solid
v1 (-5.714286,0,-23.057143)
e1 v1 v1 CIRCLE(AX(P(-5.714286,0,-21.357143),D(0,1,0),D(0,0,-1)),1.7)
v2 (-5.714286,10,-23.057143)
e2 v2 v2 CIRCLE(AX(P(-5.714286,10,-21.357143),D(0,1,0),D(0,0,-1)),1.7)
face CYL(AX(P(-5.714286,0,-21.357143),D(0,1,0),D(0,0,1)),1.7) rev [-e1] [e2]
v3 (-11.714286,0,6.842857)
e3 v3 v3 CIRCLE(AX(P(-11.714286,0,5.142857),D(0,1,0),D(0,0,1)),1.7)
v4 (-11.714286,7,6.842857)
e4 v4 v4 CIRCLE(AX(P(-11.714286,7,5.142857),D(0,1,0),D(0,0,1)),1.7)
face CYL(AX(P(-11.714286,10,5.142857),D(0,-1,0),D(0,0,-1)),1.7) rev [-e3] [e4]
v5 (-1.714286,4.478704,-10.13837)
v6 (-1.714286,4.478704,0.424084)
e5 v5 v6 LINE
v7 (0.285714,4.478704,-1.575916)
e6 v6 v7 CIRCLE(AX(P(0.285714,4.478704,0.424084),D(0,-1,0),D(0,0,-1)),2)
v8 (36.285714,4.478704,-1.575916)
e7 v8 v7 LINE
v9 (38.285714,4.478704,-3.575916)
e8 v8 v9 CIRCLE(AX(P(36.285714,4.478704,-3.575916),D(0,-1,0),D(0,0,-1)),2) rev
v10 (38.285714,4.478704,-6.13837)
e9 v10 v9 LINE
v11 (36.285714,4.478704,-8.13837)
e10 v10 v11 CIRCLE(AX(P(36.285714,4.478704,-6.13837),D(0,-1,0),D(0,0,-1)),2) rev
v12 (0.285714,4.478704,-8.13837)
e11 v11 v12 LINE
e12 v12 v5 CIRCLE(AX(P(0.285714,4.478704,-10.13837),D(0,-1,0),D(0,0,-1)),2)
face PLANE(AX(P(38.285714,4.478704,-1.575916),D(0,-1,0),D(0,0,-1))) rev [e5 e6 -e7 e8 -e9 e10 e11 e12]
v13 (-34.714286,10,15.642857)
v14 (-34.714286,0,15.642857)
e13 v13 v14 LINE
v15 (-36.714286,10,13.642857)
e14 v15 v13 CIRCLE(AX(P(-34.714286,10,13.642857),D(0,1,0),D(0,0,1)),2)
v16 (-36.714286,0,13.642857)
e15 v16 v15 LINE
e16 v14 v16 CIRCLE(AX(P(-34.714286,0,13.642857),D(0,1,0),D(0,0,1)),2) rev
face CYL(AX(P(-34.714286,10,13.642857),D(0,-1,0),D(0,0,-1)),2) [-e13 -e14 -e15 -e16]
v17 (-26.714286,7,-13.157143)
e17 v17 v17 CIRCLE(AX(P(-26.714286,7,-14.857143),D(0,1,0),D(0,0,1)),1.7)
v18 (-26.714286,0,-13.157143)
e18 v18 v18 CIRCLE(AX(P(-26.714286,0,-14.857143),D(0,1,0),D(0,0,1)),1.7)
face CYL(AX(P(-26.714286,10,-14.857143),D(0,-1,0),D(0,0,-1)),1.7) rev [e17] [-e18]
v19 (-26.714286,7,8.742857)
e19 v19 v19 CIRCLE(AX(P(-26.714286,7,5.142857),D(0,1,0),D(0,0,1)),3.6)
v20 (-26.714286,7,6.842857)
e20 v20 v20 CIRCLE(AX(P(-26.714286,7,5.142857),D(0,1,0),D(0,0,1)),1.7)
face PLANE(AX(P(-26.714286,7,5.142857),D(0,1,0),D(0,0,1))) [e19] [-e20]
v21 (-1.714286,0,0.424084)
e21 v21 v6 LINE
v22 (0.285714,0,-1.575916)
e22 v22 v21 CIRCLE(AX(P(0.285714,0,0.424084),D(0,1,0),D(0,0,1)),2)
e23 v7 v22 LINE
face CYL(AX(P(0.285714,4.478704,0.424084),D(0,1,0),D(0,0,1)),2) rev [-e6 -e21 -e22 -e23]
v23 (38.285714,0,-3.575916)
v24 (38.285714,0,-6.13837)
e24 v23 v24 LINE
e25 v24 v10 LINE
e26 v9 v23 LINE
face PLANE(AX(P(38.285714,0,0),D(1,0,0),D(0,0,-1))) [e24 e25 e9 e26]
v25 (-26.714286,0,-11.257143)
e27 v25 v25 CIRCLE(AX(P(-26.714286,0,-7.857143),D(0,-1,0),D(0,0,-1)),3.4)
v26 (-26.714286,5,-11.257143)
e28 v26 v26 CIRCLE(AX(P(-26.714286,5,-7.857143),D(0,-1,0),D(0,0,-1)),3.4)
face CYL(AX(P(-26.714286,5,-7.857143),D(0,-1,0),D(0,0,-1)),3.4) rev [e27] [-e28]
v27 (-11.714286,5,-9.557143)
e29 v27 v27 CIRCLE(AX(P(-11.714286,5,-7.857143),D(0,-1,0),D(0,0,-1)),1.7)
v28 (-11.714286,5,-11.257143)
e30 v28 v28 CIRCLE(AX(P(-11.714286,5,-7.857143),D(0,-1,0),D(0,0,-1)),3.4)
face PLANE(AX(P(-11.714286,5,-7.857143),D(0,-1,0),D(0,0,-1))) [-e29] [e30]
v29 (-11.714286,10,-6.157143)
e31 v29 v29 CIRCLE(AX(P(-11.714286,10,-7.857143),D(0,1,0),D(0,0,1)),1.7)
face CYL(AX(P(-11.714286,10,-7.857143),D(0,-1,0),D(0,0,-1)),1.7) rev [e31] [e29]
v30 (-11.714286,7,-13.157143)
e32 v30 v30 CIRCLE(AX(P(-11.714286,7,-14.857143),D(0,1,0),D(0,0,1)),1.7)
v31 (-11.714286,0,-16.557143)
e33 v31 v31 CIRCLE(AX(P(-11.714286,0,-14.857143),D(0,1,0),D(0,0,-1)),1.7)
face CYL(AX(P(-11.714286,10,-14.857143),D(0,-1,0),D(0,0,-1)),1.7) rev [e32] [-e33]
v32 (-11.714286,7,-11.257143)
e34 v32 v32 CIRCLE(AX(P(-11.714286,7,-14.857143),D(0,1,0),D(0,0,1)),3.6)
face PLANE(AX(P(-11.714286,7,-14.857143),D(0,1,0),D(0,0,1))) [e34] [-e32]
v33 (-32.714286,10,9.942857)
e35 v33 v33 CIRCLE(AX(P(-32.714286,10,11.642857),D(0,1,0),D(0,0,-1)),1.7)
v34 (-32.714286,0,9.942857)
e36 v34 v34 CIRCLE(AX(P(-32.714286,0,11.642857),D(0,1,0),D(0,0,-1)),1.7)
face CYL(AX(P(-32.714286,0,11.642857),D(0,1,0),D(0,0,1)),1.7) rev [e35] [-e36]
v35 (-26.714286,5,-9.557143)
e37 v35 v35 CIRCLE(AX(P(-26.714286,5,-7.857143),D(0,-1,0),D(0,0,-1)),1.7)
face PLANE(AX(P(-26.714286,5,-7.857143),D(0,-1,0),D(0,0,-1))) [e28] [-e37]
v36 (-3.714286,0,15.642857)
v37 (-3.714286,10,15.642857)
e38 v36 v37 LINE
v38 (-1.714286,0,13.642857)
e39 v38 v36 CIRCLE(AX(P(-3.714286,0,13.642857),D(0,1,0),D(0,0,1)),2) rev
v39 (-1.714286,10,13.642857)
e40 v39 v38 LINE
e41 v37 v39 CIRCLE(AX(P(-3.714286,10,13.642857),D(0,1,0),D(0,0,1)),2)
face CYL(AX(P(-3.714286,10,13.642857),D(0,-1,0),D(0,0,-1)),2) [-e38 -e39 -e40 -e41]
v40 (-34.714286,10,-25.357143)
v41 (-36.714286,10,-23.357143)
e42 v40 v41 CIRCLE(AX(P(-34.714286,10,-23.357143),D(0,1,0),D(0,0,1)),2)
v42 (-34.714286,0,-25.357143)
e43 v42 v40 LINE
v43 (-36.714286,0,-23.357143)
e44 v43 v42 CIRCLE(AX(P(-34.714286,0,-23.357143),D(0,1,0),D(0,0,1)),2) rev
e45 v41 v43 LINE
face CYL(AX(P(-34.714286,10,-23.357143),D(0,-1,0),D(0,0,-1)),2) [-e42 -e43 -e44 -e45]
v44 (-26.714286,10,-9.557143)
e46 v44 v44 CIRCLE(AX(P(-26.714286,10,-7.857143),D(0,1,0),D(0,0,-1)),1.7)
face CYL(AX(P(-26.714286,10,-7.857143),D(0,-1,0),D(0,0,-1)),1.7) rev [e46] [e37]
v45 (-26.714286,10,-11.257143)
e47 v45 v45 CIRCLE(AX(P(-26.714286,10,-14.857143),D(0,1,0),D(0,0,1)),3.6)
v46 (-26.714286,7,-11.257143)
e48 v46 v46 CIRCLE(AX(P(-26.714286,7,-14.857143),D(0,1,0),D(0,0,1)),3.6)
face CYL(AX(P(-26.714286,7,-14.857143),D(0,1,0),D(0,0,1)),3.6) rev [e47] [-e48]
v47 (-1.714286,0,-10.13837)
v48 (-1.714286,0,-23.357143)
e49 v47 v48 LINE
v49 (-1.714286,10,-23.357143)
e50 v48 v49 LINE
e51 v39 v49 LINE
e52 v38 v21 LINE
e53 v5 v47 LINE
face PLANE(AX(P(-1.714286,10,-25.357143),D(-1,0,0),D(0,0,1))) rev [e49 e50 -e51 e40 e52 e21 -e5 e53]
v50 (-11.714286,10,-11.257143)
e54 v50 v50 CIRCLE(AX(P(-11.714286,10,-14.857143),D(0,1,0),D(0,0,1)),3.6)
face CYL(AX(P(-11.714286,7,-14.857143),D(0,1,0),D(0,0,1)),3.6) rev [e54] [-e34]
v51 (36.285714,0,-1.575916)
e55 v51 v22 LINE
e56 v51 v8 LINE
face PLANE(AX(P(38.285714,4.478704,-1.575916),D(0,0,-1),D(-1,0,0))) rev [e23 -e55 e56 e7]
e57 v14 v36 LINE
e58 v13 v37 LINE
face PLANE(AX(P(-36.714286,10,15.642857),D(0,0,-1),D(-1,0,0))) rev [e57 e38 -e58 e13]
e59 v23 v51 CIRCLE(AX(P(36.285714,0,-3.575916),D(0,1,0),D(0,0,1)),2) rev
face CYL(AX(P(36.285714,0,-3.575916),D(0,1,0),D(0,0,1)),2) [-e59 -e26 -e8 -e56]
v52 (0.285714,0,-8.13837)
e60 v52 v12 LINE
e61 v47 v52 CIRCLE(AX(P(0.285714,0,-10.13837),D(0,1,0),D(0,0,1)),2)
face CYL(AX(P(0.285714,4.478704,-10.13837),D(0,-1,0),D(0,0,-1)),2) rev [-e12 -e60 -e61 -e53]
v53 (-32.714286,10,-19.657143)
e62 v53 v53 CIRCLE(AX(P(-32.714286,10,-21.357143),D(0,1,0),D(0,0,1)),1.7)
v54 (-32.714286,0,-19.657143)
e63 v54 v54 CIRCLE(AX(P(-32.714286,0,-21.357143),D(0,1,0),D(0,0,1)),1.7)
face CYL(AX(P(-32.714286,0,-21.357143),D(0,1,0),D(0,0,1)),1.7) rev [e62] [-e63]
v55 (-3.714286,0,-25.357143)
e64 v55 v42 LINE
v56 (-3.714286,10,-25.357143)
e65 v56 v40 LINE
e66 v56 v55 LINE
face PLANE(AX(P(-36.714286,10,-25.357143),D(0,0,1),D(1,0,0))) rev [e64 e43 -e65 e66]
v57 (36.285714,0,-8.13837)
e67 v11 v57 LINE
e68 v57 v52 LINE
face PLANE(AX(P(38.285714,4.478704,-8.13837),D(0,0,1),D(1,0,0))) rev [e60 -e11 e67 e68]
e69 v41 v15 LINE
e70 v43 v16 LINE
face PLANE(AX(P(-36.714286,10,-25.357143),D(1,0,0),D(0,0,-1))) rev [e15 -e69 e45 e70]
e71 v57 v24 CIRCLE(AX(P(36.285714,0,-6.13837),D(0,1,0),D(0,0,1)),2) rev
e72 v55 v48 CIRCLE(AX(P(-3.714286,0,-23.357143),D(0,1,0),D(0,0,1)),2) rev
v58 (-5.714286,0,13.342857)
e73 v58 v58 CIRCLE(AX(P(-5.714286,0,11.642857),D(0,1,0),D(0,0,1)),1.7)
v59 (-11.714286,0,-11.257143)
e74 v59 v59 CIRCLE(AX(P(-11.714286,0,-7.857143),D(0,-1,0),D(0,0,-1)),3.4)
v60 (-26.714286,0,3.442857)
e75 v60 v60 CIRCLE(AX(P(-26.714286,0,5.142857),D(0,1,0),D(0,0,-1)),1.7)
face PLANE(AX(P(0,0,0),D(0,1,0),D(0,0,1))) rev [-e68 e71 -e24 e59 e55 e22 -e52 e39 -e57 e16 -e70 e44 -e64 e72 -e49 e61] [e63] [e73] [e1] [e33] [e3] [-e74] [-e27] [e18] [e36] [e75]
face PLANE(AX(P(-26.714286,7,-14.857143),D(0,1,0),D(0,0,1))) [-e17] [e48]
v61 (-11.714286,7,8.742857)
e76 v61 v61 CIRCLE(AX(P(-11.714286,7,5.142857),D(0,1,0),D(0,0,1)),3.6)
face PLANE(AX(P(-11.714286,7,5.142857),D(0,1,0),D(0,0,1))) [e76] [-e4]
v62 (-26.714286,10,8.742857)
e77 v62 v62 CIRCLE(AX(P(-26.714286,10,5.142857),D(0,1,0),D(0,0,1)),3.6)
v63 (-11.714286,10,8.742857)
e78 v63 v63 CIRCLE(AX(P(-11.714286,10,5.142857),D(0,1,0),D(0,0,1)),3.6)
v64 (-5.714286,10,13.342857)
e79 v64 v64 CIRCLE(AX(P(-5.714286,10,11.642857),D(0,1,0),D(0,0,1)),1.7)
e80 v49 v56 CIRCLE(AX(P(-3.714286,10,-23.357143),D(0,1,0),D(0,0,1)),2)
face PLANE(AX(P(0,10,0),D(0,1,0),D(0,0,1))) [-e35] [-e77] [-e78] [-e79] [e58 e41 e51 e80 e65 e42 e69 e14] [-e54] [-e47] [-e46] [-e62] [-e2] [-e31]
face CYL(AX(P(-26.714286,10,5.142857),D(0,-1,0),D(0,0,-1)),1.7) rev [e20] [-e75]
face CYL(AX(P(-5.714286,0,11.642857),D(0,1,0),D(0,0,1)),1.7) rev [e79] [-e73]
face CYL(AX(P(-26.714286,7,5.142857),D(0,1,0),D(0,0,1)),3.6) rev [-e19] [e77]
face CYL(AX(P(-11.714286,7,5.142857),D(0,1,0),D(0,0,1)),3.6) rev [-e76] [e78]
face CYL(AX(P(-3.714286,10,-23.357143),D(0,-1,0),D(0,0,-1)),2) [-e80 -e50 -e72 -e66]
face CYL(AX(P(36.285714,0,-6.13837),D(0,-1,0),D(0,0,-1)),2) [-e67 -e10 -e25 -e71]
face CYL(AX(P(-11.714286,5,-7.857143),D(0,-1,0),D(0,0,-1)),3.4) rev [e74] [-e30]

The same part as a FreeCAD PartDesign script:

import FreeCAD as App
import Part
import Sketcher

V = App.Vector


def edges_at(feature, points):
    """Names of the edges that pass closest to the given points."""
    edges = feature.Shape.Edges
    near = lambda p: min(range(len(edges)), key=lambda i: edges[i].distToShape(Part.Vertex(*p))[0])
    return sorted({f"Edge{near(p) + 1}" for p in points})


def add_polygon(sketch, points):
    """Adds a closed chain of lines whose ends are joined by coincident constraints."""
    first, n = sketch.GeometryCount, len(points)
    for a, b in zip(points, points[1:] + points[:1]):
        sketch.addGeometry(Part.LineSegment(App.Vector(*a, 0), App.Vector(*b, 0)), False)
    for i in range(n):
        sketch.addConstraint(Sketcher.Constraint("Coincident", first + i, 2, first + (i + 1) % n, 1))

doc = App.newDocument("Part")
body = doc.addObject("PartDesign::Body", "Body")

sketch1 = body.newObject("Sketcher::SketchObject", "Sketch")
sketch1.AttachmentSupport = (doc.getObject("XZ_Plane"), [""])
sketch1.MapMode = "FlatFace"
add_polygon(sketch1, [(-36.714286, -25.357143), (-36.714286, 15.642857), (-1.714286, 15.642857), (-1.714286, -25.357143)])
sketch1.addGeometry(Part.Circle(V(-26.714286, 5.142857, 0), V(0, 0, 1), 1.7), False)
sketch1.addGeometry(Part.Circle(V(-11.714286, 5.142857, 0), V(0, 0, 1), 1.7), False)
sketch1.addGeometry(Part.Circle(V(-26.714286, -7.857143, 0), V(0, 0, 1), 1.7), False)
sketch1.addGeometry(Part.Circle(V(-26.714286, -14.857143, 0), V(0, 0, 1), 1.7), False)
sketch1.addGeometry(Part.Circle(V(-11.714286, -7.857143, 0), V(0, 0, 1), 1.7), False)
sketch1.addGeometry(Part.Circle(V(-11.714286, -14.857143, 0), V(0, 0, 1), 1.7), False)
sketch1.addConstraint(Sketcher.Constraint("Vertical", 0))
sketch1.addConstraint(Sketcher.Constraint("Horizontal", 1))
sketch1.addConstraint(Sketcher.Constraint("Vertical", 2))
sketch1.addConstraint(Sketcher.Constraint("Horizontal", 3))
sketch1.addConstraint(Sketcher.Constraint("Equal", 4, 5))
sketch1.addConstraint(Sketcher.Constraint("Equal", 5, 6))
sketch1.addConstraint(Sketcher.Constraint("Equal", 6, 7))
sketch1.addConstraint(Sketcher.Constraint("Equal", 7, 8))
sketch1.addConstraint(Sketcher.Constraint("Equal", 8, 9))
sketch1.addConstraint(Sketcher.Constraint("Horizontal", 4, 3, 5, 3))
sketch1.addConstraint(Sketcher.Constraint("Horizontal", 6, 3, 8, 3))
sketch1.addConstraint(Sketcher.Constraint("Horizontal", 7, 3, 9, 3))
sketch1.addConstraint(Sketcher.Constraint("Vertical", 4, 3, 6, 3))
sketch1.addConstraint(Sketcher.Constraint("Vertical", 6, 3, 7, 3))
sketch1.addConstraint(Sketcher.Constraint("Vertical", 5, 3, 8, 3))
sketch1.addConstraint(Sketcher.Constraint("Vertical", 8, 3, 9, 3))
sketch1.addConstraint(Sketcher.Constraint("Diameter", 4, 3.4))
sketch1.addConstraint(Sketcher.Constraint("DistanceX", 1, 1, 1, 2, 35.0))
sketch1.addConstraint(Sketcher.Constraint("DistanceY", 0, 1, 0, 2, 41.0))
sketch1.addConstraint(Sketcher.Constraint("DistanceX", 4, 3, 5, 3, 15.0))
sketch1.addConstraint(Sketcher.Constraint("DistanceY", 6, 3, 4, 3, 13.0))
sketch1.addConstraint(Sketcher.Constraint("DistanceY", 7, 3, 6, 3, 7.0))
sketch1.addConstraint(Sketcher.Constraint("DistanceX", 0, 2, 4, 3, 10.0))
sketch1.addConstraint(Sketcher.Constraint("DistanceY", 4, 3, 0, 2, 10.5))
sketch1.addConstraint(Sketcher.Constraint("DistanceX", 4, 3, -1, 1, 26.714286))
sketch1.addConstraint(Sketcher.Constraint("DistanceY", -1, 1, 4, 3, 5.142857))
pad1 = body.newObject("PartDesign::Pad", "Pad")
pad1.Profile = sketch1
pad1.Length = 10
pad1.Reversed = True

sketch2 = body.newObject("Sketcher::SketchObject", "Sketch001")
sketch2.AttachmentSupport = (doc.getObject("XZ_Plane"), [""])
sketch2.MapMode = "FlatFace"
sketch2.AttachmentOffset = App.Placement(V(0, 0, -10), App.Rotation())
sketch2.addGeometry(Part.Circle(V(-26.714286, 5.142857, 0), V(0, 0, 1), 3.6), False)
sketch2.addGeometry(Part.Circle(V(-11.714286, 5.142857, 0), V(0, 0, 1), 3.6), False)
sketch2.addGeometry(Part.Circle(V(-11.714286, -14.857143, 0), V(0, 0, 1), 3.6), False)
sketch2.addGeometry(Part.Circle(V(-26.714286, -14.857143, 0), V(0, 0, 1), 3.6), False)
sketch2.addConstraint(Sketcher.Constraint("Equal", 0, 1))
sketch2.addConstraint(Sketcher.Constraint("Equal", 1, 2))
sketch2.addConstraint(Sketcher.Constraint("Equal", 2, 3))
sketch2.addConstraint(Sketcher.Constraint("Horizontal", 0, 3, 1, 3))
sketch2.addConstraint(Sketcher.Constraint("Horizontal", 2, 3, 3, 3))
sketch2.addConstraint(Sketcher.Constraint("Vertical", 1, 3, 2, 3))
sketch2.addConstraint(Sketcher.Constraint("Vertical", 0, 3, 3, 3))
sketch2.addConstraint(Sketcher.Constraint("Diameter", 0, 7.2))
sketch2.addConstraint(Sketcher.Constraint("DistanceX", 0, 3, 1, 3, 15.0))
sketch2.addConstraint(Sketcher.Constraint("DistanceY", 2, 3, 1, 3, 20.0))
sketch2.addConstraint(Sketcher.Constraint("DistanceX", 0, 3, -1, 1, 26.714286))
sketch2.addConstraint(Sketcher.Constraint("DistanceY", -1, 1, 0, 3, 5.142857))
pocket1 = body.newObject("PartDesign::Pocket", "Pocket")
pocket1.Profile = sketch2
pocket1.Length = 3
pocket1.Reversed = True

sketch3 = body.newObject("Sketcher::SketchObject", "Sketch002")
sketch3.AttachmentSupport = (doc.getObject("XZ_Plane"), [""])
sketch3.MapMode = "FlatFace"
sketch3.addGeometry(Part.Circle(V(-11.714286, -7.857143, 0), V(0, 0, 1), 3.4), False)
sketch3.addGeometry(Part.Circle(V(-26.714286, -7.857143, 0), V(0, 0, 1), 3.4), False)
sketch3.addConstraint(Sketcher.Constraint("Equal", 0, 1))
sketch3.addConstraint(Sketcher.Constraint("Horizontal", 0, 3, 1, 3))
sketch3.addConstraint(Sketcher.Constraint("Diameter", 0, 6.8))
sketch3.addConstraint(Sketcher.Constraint("DistanceX", 1, 3, 0, 3, 15.0))
sketch3.addConstraint(Sketcher.Constraint("DistanceX", 0, 3, -1, 1, 11.714286))
sketch3.addConstraint(Sketcher.Constraint("DistanceY", 0, 3, -1, 1, 7.857143))
pocket2 = body.newObject("PartDesign::Pocket", "Pocket001")
pocket2.Profile = sketch3
pocket2.Length = 5

sketch4 = body.newObject("Sketcher::SketchObject", "Sketch003")
sketch4.AttachmentSupport = (doc.getObject("XZ_Plane"), [""])
sketch4.MapMode = "FlatFace"
sketch4.AttachmentOffset = App.Placement(V(0, 0, -10), App.Rotation())
sketch4.addGeometry(Part.Circle(V(-32.714286, -21.357143, 0), V(0, 0, 1), 1.7), False)
sketch4.addGeometry(Part.Circle(V(-5.714286, -21.357143, 0), V(0, 0, 1), 1.7), False)
sketch4.addGeometry(Part.Circle(V(-5.714286, 11.642857, 0), V(0, 0, 1), 1.7), False)
sketch4.addGeometry(Part.Circle(V(-32.714286, 11.642857, 0), V(0, 0, 1), 1.7), False)
sketch4.addConstraint(Sketcher.Constraint("Equal", 0, 1))
sketch4.addConstraint(Sketcher.Constraint("Equal", 1, 2))
sketch4.addConstraint(Sketcher.Constraint("Equal", 2, 3))
sketch4.addConstraint(Sketcher.Constraint("Horizontal", 0, 3, 1, 3))
sketch4.addConstraint(Sketcher.Constraint("Horizontal", 2, 3, 3, 3))
sketch4.addConstraint(Sketcher.Constraint("Vertical", 1, 3, 2, 3))
sketch4.addConstraint(Sketcher.Constraint("Vertical", 0, 3, 3, 3))
sketch4.addConstraint(Sketcher.Constraint("Diameter", 0, 3.4))
sketch4.addConstraint(Sketcher.Constraint("DistanceX", 0, 3, 1, 3, 27.0))
sketch4.addConstraint(Sketcher.Constraint("DistanceY", 1, 3, 2, 3, 33.0))
sketch4.addConstraint(Sketcher.Constraint("DistanceX", 0, 3, -1, 1, 32.714286))
sketch4.addConstraint(Sketcher.Constraint("DistanceY", 0, 3, -1, 1, 21.357143))
pocket3 = body.newObject("PartDesign::Pocket", "Pocket002")
pocket3.Profile = sketch4
pocket3.Type = "ThroughAll"
pocket3.Reversed = True
doc.recompute()

fillet = body.newObject("PartDesign::Fillet", "Fillet")
fillet.Base = (pocket3, edges_at(pocket3, [
    (-36.714, 5, -25.357),
    (-1.714, 5, -25.357),
    (-1.714, 5, 15.643),
    (-36.714, 5, 15.643),
]))
fillet.Radius = 2

sketch5 = body.newObject("Sketcher::SketchObject", "Sketch004")
sketch5.AttachmentSupport = (doc.getObject("YZ_Plane"), [""])
sketch5.MapMode = "FlatFace"
sketch5.AttachmentOffset = App.Placement(V(0, 0, -1.714286), App.Rotation())
add_polygon(sketch5, [(4.478704, -1.575916), (0, -1.575916), (0, -8.13837), (4.478704, -8.13837)])
sketch5.addConstraint(Sketcher.Constraint("Horizontal", 0))
sketch5.addConstraint(Sketcher.Constraint("Vertical", 1))
sketch5.addConstraint(Sketcher.Constraint("Horizontal", 2))
sketch5.addConstraint(Sketcher.Constraint("Vertical", 3))
sketch5.addConstraint(Sketcher.Constraint("PointOnObject", 0, 2, -2))
sketch5.addConstraint(Sketcher.Constraint("DistanceX", 0, 2, 0, 1, 4.478704))
sketch5.addConstraint(Sketcher.Constraint("DistanceY", 1, 2, 1, 1, 6.562455))
sketch5.addConstraint(Sketcher.Constraint("DistanceY", 1, 2, -1, 1, 8.13837))
pad2 = body.newObject("PartDesign::Pad", "Pad001")
pad2.Profile = sketch5
pad2.Length = 40
doc.recompute()

fillet2 = body.newObject("PartDesign::Fillet", "Fillet001")
fillet2.Base = (pad2, edges_at(pad2, [
    (-1.714, 2.239, -8.138),
    (-1.714, 2.239, -1.576),
    (38.286, 2.239, -8.138),
    (38.286, 2.239, -1.576),
]))
fillet2.Radius = 2

doc.recompute()
